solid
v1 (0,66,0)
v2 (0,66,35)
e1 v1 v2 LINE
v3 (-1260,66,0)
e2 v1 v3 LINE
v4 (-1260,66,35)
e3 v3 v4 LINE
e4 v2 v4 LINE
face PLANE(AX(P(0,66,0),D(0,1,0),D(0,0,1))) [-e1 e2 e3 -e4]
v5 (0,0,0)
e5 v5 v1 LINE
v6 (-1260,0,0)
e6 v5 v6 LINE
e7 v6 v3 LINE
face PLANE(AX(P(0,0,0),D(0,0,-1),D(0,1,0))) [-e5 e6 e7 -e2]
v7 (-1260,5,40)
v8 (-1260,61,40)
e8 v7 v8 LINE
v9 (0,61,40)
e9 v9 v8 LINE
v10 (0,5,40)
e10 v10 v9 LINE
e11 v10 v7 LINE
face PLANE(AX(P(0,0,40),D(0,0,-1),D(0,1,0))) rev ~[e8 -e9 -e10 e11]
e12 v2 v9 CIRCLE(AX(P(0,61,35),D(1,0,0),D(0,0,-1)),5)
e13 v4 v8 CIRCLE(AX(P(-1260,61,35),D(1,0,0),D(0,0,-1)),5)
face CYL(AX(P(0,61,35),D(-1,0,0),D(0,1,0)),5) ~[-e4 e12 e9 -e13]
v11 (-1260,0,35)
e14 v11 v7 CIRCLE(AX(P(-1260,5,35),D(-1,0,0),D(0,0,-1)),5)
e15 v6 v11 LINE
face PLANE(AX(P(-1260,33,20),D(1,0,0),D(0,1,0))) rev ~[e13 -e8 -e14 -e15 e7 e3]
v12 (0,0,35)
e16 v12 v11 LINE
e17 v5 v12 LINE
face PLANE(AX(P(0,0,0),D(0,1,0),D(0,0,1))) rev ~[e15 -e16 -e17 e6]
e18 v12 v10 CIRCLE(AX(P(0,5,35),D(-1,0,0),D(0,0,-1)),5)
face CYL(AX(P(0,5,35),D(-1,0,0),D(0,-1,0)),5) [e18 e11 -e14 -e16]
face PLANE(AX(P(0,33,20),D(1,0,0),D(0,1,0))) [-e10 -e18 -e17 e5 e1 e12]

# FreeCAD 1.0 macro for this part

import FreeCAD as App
import Part
import Sketcher
from FreeCAD import Vector
Q = App.Units.Quantity


def edges_at(feature, points):
    """Names of the edges that pass closest to the given points."""
    edges = feature.Shape.Edges
    near = lambda p: min(range(len(edges)), key=lambda i: edges[i].distToShape(Part.Vertex(*p))[0])
    return sorted({f"Edge{near(p) + 1}" for p in points})


def add_polygon(sketch, points):
    """Adds a closed chain of lines whose ends are joined by coincident constraints."""
    first, n = sketch.GeometryCount, len(points)
    for a, b in zip(points, points[1:] + points[:1]):
        sketch.addGeometry(Part.LineSegment(App.Vector(*a, 0), App.Vector(*b, 0)), False)
    for i in range(n):
        sketch.addConstraint(Sketcher.Constraint("Coincident", first + i, 2, first + (i + 1) % n, 1))

doc = App.newDocument("Part")
body = doc.addObject("PartDesign::Body", "Body")

sketch1 = body.newObject("Sketcher::SketchObject", "Sketch")
sketch1.AttachmentSupport = (doc.getObject("YZ_Plane"), [""])
sketch1.MapMode = "FlatFace"
add_polygon(sketch1, [(0, 40), (0, 0), (66, 0), (66, 40)])
sketch1.addConstraint([
    Sketcher.Constraint("Vertical", 0),
    Sketcher.Constraint("Horizontal", 1),
    Sketcher.Constraint("Vertical", 2),
    Sketcher.Constraint("Horizontal", 3),
    Sketcher.Constraint("Coincident", 0, 2, -1, 1),
    Sketcher.Constraint("DistanceX", 1, 1, 1, 2, Q("66 mm")),
    Sketcher.Constraint("DistanceY", 0, 2, 0, 1, Q("40 mm")),
])
pad1 = body.newObject("PartDesign::Pad", "Pad")
pad1.Profile = sketch1
pad1.Length = 1260
pad1.Reversed = True
doc.recompute()

fillet = body.newObject("PartDesign::Fillet", "Fillet")
fillet.Base = (pad1, edges_at(pad1, [(-630, 0, 40), (-630, 66, 40)]))
fillet.Radius = 5

doc.recompute()
